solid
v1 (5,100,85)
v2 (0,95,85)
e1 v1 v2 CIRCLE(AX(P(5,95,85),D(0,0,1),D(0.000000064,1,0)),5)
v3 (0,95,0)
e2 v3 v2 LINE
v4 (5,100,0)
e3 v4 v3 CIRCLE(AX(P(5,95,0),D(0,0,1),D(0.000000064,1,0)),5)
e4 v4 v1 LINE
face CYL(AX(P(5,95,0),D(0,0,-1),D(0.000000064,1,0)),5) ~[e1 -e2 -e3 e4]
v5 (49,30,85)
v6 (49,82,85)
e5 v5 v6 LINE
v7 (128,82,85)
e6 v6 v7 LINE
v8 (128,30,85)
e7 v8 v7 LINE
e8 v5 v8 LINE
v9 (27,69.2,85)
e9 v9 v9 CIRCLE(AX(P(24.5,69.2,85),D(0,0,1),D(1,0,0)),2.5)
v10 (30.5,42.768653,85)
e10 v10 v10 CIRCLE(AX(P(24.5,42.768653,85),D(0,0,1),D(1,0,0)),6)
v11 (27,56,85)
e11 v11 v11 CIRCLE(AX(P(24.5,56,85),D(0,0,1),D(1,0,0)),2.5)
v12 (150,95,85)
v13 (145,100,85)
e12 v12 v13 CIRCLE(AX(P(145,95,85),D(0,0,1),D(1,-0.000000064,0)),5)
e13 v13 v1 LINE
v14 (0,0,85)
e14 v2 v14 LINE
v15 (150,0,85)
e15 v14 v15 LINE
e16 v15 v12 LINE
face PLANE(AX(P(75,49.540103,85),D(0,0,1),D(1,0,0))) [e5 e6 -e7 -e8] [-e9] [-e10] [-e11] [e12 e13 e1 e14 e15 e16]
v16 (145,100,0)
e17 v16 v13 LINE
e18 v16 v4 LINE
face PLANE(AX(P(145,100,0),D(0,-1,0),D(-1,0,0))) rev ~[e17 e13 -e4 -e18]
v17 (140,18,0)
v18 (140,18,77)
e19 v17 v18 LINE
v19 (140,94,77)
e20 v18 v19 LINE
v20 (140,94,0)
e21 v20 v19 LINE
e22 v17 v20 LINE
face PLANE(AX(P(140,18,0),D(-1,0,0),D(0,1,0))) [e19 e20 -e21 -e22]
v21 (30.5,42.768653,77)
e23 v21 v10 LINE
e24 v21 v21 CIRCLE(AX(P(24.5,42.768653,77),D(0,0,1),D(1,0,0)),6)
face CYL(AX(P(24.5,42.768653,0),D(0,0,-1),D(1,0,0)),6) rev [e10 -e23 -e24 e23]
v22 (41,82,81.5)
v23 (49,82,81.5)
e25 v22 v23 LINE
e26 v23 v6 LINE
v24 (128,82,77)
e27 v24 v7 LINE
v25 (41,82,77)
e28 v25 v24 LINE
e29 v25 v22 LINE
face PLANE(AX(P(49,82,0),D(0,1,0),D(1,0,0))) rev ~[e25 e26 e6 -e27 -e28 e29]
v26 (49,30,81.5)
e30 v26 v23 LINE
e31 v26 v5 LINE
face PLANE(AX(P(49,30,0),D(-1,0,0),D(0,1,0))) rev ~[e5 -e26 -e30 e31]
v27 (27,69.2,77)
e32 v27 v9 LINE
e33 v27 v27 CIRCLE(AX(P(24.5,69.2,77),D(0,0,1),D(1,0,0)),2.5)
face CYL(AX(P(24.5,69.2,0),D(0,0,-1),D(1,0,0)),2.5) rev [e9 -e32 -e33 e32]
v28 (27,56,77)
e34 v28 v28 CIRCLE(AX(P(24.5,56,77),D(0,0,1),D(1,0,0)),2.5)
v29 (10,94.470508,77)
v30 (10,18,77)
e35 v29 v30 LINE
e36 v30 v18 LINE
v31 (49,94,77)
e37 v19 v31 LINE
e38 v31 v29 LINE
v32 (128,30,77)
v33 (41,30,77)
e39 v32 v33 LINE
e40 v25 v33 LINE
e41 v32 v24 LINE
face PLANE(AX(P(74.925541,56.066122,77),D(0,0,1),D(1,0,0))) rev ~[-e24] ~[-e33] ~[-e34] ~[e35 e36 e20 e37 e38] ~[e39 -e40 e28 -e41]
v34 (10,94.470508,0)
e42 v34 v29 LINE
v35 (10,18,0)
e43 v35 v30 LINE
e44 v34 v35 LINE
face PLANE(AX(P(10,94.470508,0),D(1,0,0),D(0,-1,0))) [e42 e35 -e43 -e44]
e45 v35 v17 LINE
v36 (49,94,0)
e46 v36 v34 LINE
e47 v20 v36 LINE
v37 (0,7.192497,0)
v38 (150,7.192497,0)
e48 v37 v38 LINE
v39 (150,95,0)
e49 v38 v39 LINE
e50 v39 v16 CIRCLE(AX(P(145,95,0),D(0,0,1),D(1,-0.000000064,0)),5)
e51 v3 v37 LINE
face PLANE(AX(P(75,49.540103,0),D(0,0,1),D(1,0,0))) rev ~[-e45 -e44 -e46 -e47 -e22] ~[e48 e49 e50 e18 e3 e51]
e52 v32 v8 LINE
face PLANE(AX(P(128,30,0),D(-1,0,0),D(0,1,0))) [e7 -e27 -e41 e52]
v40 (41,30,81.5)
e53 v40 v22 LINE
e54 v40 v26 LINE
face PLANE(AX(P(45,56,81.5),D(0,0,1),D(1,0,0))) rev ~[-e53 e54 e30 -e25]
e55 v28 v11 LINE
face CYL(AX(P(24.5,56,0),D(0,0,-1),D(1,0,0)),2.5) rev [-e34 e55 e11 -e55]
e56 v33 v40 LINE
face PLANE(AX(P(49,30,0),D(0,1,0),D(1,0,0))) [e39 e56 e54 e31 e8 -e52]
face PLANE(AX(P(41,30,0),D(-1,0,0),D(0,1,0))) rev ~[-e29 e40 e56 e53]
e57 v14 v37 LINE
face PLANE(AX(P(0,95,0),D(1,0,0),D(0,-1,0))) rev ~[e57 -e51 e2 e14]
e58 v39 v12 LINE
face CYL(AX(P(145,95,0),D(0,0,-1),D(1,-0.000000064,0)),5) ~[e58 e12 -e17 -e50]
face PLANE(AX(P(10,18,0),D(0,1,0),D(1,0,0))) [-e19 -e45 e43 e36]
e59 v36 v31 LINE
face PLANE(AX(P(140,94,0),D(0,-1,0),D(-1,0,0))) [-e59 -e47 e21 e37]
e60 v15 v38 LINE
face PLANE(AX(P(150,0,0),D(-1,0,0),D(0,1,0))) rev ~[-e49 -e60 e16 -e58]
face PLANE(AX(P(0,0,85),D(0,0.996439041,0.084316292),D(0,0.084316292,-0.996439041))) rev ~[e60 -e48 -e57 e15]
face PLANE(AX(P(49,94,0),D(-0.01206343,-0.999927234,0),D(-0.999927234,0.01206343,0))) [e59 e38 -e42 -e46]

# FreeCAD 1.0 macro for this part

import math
import FreeCAD as App
import Part
import Sketcher
from FreeCAD import Vector
Q = App.Units.Quantity

doc = App.newDocument("Part")
body = doc.addObject("PartDesign::Body", "Body")

sketch1 = body.newObject("Sketcher::SketchObject", "Sketch")
sketch1.AttachmentSupport = (doc.getObject("XY_Plane"), [""])
sketch1.MapMode = "FlatFace"
sketch1.addGeometry([
    Part.LineSegment(Vector(0, 95, 0), Vector(0, 0, 0)),
    Part.LineSegment(Vector(0, 0, 0), Vector(150, 0, 0)),
    Part.LineSegment(Vector(150, 0, 0), Vector(150, 95, 0)),
    Part.ArcOfCircle(Part.Circle(Vector(145, 95, 0), Vector(0, 0, 1), 5), math.radians(0), math.radians(90)),
    Part.LineSegment(Vector(145, 100, 0), Vector(5, 100, 0)),
    Part.ArcOfCircle(Part.Circle(Vector(5, 95, 0), Vector(0, 0, 1), 5), math.radians(90), math.radians(180)),
    Part.Circle(Vector(24.5, 42.8, 0), Vector(0, 0, 1), 6),
    Part.Circle(Vector(24.5, 56, 0), Vector(0, 0, 1), 2.5),
    Part.Circle(Vector(24.5, 69.2, 0), Vector(0, 0, 1), 2.5),
    Part.LineSegment(Vector(128, 30, 0), Vector(49, 30, 0)),
    Part.LineSegment(Vector(49, 30, 0), Vector(49, 82, 0)),
    Part.LineSegment(Vector(49, 82, 0), Vector(128, 82, 0)),
    Part.LineSegment(Vector(128, 82, 0), Vector(128, 30, 0)),
], False)
sketch1.addConstraint([
    Sketcher.Constraint("Coincident", 0, 2, 1, 1),
    Sketcher.Constraint("Coincident", 1, 2, 2, 1),
    Sketcher.Constraint("Tangent", 2, 2, 3, 1),
    Sketcher.Constraint("Tangent", 3, 2, 4, 1),
    Sketcher.Constraint("Tangent", 4, 2, 5, 1),
    Sketcher.Constraint("Tangent", 5, 2, 0, 1),
    Sketcher.Constraint("Coincident", 9, 2, 10, 1),
    Sketcher.Constraint("Coincident", 10, 2, 11, 1),
    Sketcher.Constraint("Coincident", 11, 2, 12, 1),
    Sketcher.Constraint("Coincident", 12, 2, 9, 1),
    Sketcher.Constraint("Vertical", 0),
    Sketcher.Constraint("Horizontal", 1),
    Sketcher.Constraint("Vertical", 2),
    Sketcher.Constraint("Horizontal", 4),
    Sketcher.Constraint("Horizontal", 9),
    Sketcher.Constraint("Vertical", 10),
    Sketcher.Constraint("Horizontal", 11),
    Sketcher.Constraint("Vertical", 12),
    Sketcher.Constraint("Coincident", 0, 2, -1, 1),
    Sketcher.Constraint("Equal", 3, 5),
    Sketcher.Constraint("Equal", 7, 8),
    Sketcher.Constraint("Vertical", 6, 3, 7, 3),
    Sketcher.Constraint("Vertical", 7, 3, 8, 3),
    Sketcher.Constraint("Diameter", 6, Q("12 mm")),
    Sketcher.Constraint("Diameter", 7, Q("5 mm")),
    Sketcher.Constraint("Radius", 3, Q("5 mm")),
    Sketcher.Constraint("DistanceX", 1, 1, 1, 2, Q("150 mm")),
    Sketcher.Constraint("DistanceX", 9, 2, 9, 1, Q("79 mm")),
    Sketcher.Constraint("DistanceY", 0, 2, 0, 1, Q("95 mm")),
    Sketcher.Constraint("DistanceY", 10, 1, 10, 2, Q("52 mm")),
    Sketcher.Constraint("DistanceY", -1, 1, 7, 3, Q("56 mm")),
    Sketcher.Constraint("DistanceX", -1, 1, 9, 2, Q("49 mm")),
    Sketcher.Constraint("DistanceY", -1, 1, 9, 2, Q("30 mm")),
    Sketcher.Constraint("DistanceX", -1, 1, 6, 3, Q("24.5 mm")),
    Sketcher.Constraint("DistanceY", -1, 1, 8, 3, Q("69.2 mm")),
    Sketcher.Constraint("DistanceY", -1, 1, 6, 3, Q("42.768653 mm")),
])
pad1 = body.newObject("PartDesign::Pad", "Pad")
pad1.Profile = sketch1
pad1.Length = 85

sketch2 = body.newObject("Sketcher::SketchObject", "Sketch001")
sketch2.AttachmentSupport = (doc.getObject("XY_Plane"), [""])
sketch2.MapMode = "FlatFace"
sketch2.addGeometry([
    Part.LineSegment(Vector(140, 18, 0), Vector(140, 94, 0)),
    Part.LineSegment(Vector(140, 94, 0), Vector(49, 94, 0)),
    Part.LineSegment(Vector(49, 94, 0), Vector(10, 94.5, 0)),
    Part.LineSegment(Vector(10, 94.5, 0), Vector(10, 18, 0)),
    Part.LineSegment(Vector(10, 18, 0), Vector(140, 18, 0)),
    Part.Circle(Vector(24.5, 42.8, 0), Vector(0, 0, 1), 6),
    Part.Circle(Vector(24.5, 56, 0), Vector(0, 0, 1), 2.5),
    Part.Circle(Vector(24.5, 69.2, 0), Vector(0, 0, 1), 2.5),
    Part.LineSegment(Vector(128, 30, 0), Vector(49, 30, 0)),
    Part.LineSegment(Vector(49, 30, 0), Vector(49, 82, 0)),
    Part.LineSegment(Vector(49, 82, 0), Vector(128, 82, 0)),
    Part.LineSegment(Vector(128, 82, 0), Vector(128, 30, 0)),
], False)
sketch2.addConstraint([
    Sketcher.Constraint("Coincident", 0, 2, 1, 1),
    Sketcher.Constraint("Coincident", 1, 2, 2, 1),
    Sketcher.Constraint("Coincident", 2, 2, 3, 1),
    Sketcher.Constraint("Coincident", 3, 2, 4, 1),
    Sketcher.Constraint("Coincident", 4, 2, 0, 1),
    Sketcher.Constraint("Coincident", 8, 2, 9, 1),
    Sketcher.Constraint("Coincident", 9, 2, 10, 1),
    Sketcher.Constraint("Coincident", 10, 2, 11, 1),
    Sketcher.Constraint("Coincident", 11, 2, 8, 1),
    Sketcher.Constraint("Vertical", 0),
    Sketcher.Constraint("Horizontal", 1),
    Sketcher.Constraint("Vertical", 3),
    Sketcher.Constraint("Horizontal", 4),
    Sketcher.Constraint("Horizontal", 8),
    Sketcher.Constraint("Vertical", 9),
    Sketcher.Constraint("Horizontal", 10),
    Sketcher.Constraint("Vertical", 11),
    Sketcher.Constraint("Equal", 6, 7),
    Sketcher.Constraint("Vertical", 5, 3, 6, 3),
    Sketcher.Constraint("Vertical", 6, 3, 7, 3),
    Sketcher.Constraint("Vertical", 1, 2, 8, 2),
    Sketcher.Constraint("Diameter", 5, Q("12 mm")),
    Sketcher.Constraint("Diameter", 6, Q("5 mm")),
    Sketcher.Constraint("DistanceX", 1, 2, 1, 1, Q("91 mm")),
    Sketcher.Constraint("DistanceX", 4, 1, 4, 2, Q("130 mm")),
    Sketcher.Constraint("DistanceX", 8, 2, 8, 1, Q("79 mm")),
    Sketcher.Constraint("DistanceY", 0, 1, 0, 2, Q("76 mm")),
    Sketcher.Constraint("DistanceY", 9, 1, 9, 2, Q("52 mm")),
    Sketcher.Constraint("DistanceY", -1, 1, 6, 3, Q("56 mm")),
    Sketcher.Constraint("DistanceX", -1, 1, 0, 2, Q("140 mm")),
    Sketcher.Constraint("DistanceY", -1, 1, 0, 2, Q("94 mm")),
    Sketcher.Constraint("DistanceY", -1, 1, 8, 2, Q("30 mm")),
    Sketcher.Constraint("DistanceX", -1, 1, 5, 3, Q("24.5 mm")),
    Sketcher.Constraint("DistanceY", -1, 1, 7, 3, Q("69.2 mm")),
    Sketcher.Constraint("Distance", 2, Q("39.002838 mm")),
    Sketcher.Constraint("DistanceY", -1, 1, 5, 3, Q("42.768653 mm")),
])
pocket1 = body.newObject("PartDesign::Pocket", "Pocket")
pocket1.Profile = sketch2
pocket1.Length = 77
pocket1.Reversed = True

sketch3 = body.newObject("Sketcher::SketchObject", "Sketch002")
sketch3.AttachmentSupport = (doc.getObject("XY_Plane"), [""])
sketch3.MapMode = "FlatFace"
sketch3.addGeometry([
    Part.LineSegment(Vector(41, 82, 0), Vector(41, 30, 0)),
    Part.LineSegment(Vector(41, 30, 0), Vector(49, 30, 0)),
    Part.LineSegment(Vector(49, 30, 0), Vector(49, 82, 0)),
    Part.LineSegment(Vector(49, 82, 0), Vector(41, 82, 0)),
], False)
sketch3.addConstraint([
    Sketcher.Constraint("Coincident", 0, 2, 1, 1),
    Sketcher.Constraint("Coincident", 1, 2, 2, 1),
    Sketcher.Constraint("Coincident", 2, 2, 3, 1),
    Sketcher.Constraint("Coincident", 3, 2, 0, 1),
    Sketcher.Constraint("Vertical", 0),
    Sketcher.Constraint("Horizontal", 1),
    Sketcher.Constraint("Vertical", 2),
    Sketcher.Constraint("Horizontal", 3),
    Sketcher.Constraint("DistanceX", 1, 1, 1, 2, Q("8 mm")),
    Sketcher.Constraint("DistanceY", 0, 2, 0, 1, Q("52 mm")),
    Sketcher.Constraint("DistanceX", -1, 1, 0, 2, Q("41 mm")),
    Sketcher.Constraint("DistanceY", -1, 1, 0, 2, Q("30 mm")),
])
pocket2 = body.newObject("PartDesign::Pocket", "Pocket001")
pocket2.Profile = sketch3
pocket2.Length = 81.5
pocket2.Reversed = True

sketch4 = body.newObject("Sketcher::SketchObject", "Sketch003")
sketch4.AttachmentSupport = (doc.getObject("YZ_Plane"), [""])
sketch4.MapMode = "FlatFace"
sketch4.addGeometry([
    Part.LineSegment(Vector(0, 0, 0), Vector(0, 85, 0)),
    Part.LineSegment(Vector(0, 85, 0), Vector(7, 0, 0)),
    Part.LineSegment(Vector(7, 0, 0), Vector(0, 0, 0)),
], False)
sketch4.addConstraint([
    Sketcher.Constraint("Coincident", 0, 2, 1, 1),
    Sketcher.Constraint("Coincident", 1, 2, 2, 1),
    Sketcher.Constraint("Coincident", 2, 2, 0, 1),
    Sketcher.Constraint("Vertical", 0),
    Sketcher.Constraint("Horizontal", 2),
    Sketcher.Constraint("Coincident", 2, 2, -1, 1),
    Sketcher.Constraint("DistanceY", 0, 1, 0, 2, Q("85 mm")),
    Sketcher.Constraint("DistanceX", 2, 2, 2, 1, Q("7.192497 mm")),
])
pocket3 = body.newObject("PartDesign::Pocket", "Pocket002")
pocket3.Profile = sketch4
pocket3.Type = "ThroughAll"
pocket3.Reversed = True

doc.recompute()
